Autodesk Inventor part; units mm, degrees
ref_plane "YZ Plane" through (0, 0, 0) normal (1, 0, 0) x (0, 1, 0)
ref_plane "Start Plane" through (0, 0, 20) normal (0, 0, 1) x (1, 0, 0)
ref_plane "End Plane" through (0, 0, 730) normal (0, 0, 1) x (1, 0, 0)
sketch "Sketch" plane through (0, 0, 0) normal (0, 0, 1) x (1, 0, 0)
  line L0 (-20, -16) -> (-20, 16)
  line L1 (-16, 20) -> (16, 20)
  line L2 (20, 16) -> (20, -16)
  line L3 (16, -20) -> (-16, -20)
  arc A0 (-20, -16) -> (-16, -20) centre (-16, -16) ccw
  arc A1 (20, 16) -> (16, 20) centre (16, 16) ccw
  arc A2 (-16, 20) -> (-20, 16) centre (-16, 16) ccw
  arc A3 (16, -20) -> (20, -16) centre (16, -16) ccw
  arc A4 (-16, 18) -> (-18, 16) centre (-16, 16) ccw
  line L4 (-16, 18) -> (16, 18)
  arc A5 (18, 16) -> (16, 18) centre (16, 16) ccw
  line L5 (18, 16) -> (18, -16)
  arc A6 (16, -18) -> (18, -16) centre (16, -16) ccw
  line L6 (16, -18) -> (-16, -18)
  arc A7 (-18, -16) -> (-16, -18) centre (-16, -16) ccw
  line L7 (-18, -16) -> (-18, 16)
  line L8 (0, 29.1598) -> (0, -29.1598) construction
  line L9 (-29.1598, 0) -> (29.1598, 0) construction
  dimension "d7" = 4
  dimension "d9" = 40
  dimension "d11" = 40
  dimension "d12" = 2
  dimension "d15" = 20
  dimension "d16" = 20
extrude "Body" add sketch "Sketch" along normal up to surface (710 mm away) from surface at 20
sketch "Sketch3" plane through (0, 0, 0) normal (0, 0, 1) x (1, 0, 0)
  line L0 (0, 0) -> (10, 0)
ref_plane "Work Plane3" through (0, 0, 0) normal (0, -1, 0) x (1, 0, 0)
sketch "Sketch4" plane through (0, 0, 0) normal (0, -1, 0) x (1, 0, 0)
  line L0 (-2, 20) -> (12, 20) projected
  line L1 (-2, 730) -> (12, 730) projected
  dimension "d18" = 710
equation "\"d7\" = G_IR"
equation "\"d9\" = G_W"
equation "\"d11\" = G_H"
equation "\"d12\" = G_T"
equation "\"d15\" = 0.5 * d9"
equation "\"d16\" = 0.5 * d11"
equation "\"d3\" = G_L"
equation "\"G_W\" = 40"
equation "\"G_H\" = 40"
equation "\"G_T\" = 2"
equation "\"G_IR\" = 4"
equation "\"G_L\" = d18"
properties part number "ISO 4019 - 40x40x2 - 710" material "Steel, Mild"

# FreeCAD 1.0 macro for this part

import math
import FreeCAD as App
import Part
import Sketcher

V = App.Vector

doc = App.newDocument("Part")
body = doc.addObject("PartDesign::Body", "Body")

# Sketch on XY plane
sketch1 = body.newObject("Sketcher::SketchObject", "Sketch")
sketch1.AttachmentSupport = (doc.getObject("XY_Plane"), [""])
sketch1.MapMode = "FlatFace"
sketch1.AttachmentOffset = App.Placement(V(0, 0, 20), App.Rotation())
sketch1.addGeometry([
    Part.LineSegment(V(-20, 16, 0), V(-20, -16, 0)),  # 0
    Part.ArcOfCircle(Part.Circle(V(-16, -16, 0), V(0, 0, 1), 4), math.radians(180), math.radians(270)),  # 1
    Part.LineSegment(V(-16, -20, 0), V(16, -20, 0)),  # 2
    Part.ArcOfCircle(Part.Circle(V(16, -16, 0), V(0, 0, 1), 4), math.radians(-90), math.radians(0)),  # 3
    Part.LineSegment(V(20, -16, 0), V(20, 16, 0)),  # 4
    Part.ArcOfCircle(Part.Circle(V(16, 16, 0), V(0, 0, 1), 4), math.radians(0), math.radians(90)),  # 5
    Part.LineSegment(V(16, 20, 0), V(-16, 20, 0)),  # 6
    Part.ArcOfCircle(Part.Circle(V(-16, 16, 0), V(0, 0, 1), 4), math.radians(90), math.radians(180)),  # 7
    Part.ArcOfCircle(Part.Circle(V(-16, 16, 0), V(0, 0, 1), 2), math.radians(90), math.radians(180)),  # 8
    Part.LineSegment(V(-16, 18, 0), V(16, 18, 0)),  # 9
    Part.ArcOfCircle(Part.Circle(V(16, 16, 0), V(0, 0, 1), 2), math.radians(0), math.radians(90)),  # 10
    Part.LineSegment(V(18, 16, 0), V(18, -16, 0)),  # 11
    Part.ArcOfCircle(Part.Circle(V(16, -16, 0), V(0, 0, 1), 2), math.radians(-90), math.radians(0)),  # 12
    Part.LineSegment(V(16, -18, 0), V(-16, -18, 0)),  # 13
    Part.ArcOfCircle(Part.Circle(V(-16, -16, 0), V(0, 0, 1), 2), math.radians(180), math.radians(270)),  # 14
    Part.LineSegment(V(-18, -16, 0), V(-18, 16, 0)),  # 15
], False)
sketch1.addConstraint([
    Sketcher.Constraint("Tangent", 0, 2, 1, 1),
    Sketcher.Constraint("Tangent", 1, 2, 2, 1),
    Sketcher.Constraint("Tangent", 2, 2, 3, 1),
    Sketcher.Constraint("Tangent", 3, 2, 4, 1),
    Sketcher.Constraint("Tangent", 4, 2, 5, 1),
    Sketcher.Constraint("Tangent", 5, 2, 6, 1),
    Sketcher.Constraint("Tangent", 6, 2, 7, 1),
    Sketcher.Constraint("Tangent", 7, 2, 0, 1),
    Sketcher.Constraint("Tangent", 8, 1, 9, 1),
    Sketcher.Constraint("Tangent", 9, 2, 10, 2),
    Sketcher.Constraint("Tangent", 10, 1, 11, 1),
    Sketcher.Constraint("Tangent", 11, 2, 12, 2),
    Sketcher.Constraint("Tangent", 12, 1, 13, 1),
    Sketcher.Constraint("Tangent", 13, 2, 14, 2),
    Sketcher.Constraint("Tangent", 14, 1, 15, 1),
    Sketcher.Constraint("Tangent", 15, 2, 8, 2),
    Sketcher.Constraint("Vertical", 0),
    Sketcher.Constraint("Horizontal", 2),
    Sketcher.Constraint("Vertical", 4),
    Sketcher.Constraint("Horizontal", 6),
    Sketcher.Constraint("Horizontal", 9),
    Sketcher.Constraint("Vertical", 11),
    Sketcher.Constraint("Horizontal", 13),
    Sketcher.Constraint("Vertical", 15),
    Sketcher.Constraint("Coincident", 8, 3, 7, 3),
    Sketcher.Constraint("Coincident", 10, 3, 5, 3),
    Sketcher.Constraint("Coincident", 12, 3, 3, 3),
    Sketcher.Constraint("Equal", 1, 3),
    Sketcher.Constraint("Equal", 3, 5),
    Sketcher.Constraint("Equal", 5, 7),
    Sketcher.Constraint("Equal", 12, 14),
    Sketcher.Constraint("Symmetric", 1, 3, 5, 3, -1, 1),
    Sketcher.Constraint("Equal", 13, 0),
    Sketcher.Constraint("Radius", 1, 4.0),
    Sketcher.Constraint("Radius", 8, 2.0),
    Sketcher.Constraint("DistanceX", 0, 2, -1, 1, 20.0),
])
pad1 = body.newObject("PartDesign::Pad", "Pad")
pad1.Profile = sketch1
pad1.Length = 710

doc.recompute()
